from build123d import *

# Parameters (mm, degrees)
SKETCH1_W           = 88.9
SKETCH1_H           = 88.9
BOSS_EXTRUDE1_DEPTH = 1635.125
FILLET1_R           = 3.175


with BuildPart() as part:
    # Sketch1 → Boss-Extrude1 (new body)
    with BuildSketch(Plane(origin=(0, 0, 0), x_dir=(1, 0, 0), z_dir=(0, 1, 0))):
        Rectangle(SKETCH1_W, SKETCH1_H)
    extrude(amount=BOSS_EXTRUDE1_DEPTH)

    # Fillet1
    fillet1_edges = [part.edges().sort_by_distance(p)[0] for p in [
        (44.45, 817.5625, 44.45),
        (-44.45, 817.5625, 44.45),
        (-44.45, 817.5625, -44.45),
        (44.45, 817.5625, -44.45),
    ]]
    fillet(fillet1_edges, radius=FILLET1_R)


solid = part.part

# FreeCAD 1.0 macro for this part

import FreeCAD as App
import Part
import Sketcher

V = App.Vector
Q = App.Units.Quantity


def edges_at(feature, points):
    """Names of the edges that pass closest to the given points."""
    edges = feature.Shape.Edges
    near = lambda p: min(range(len(edges)), key=lambda i: edges[i].distToShape(Part.Vertex(*p))[0])
    return sorted({f"Edge{near(p) + 1}" for p in points})


def add_polygon(sketch, points):
    """Adds a closed chain of lines whose ends are joined by coincident constraints."""
    first, n = sketch.GeometryCount, len(points)
    for a, b in zip(points, points[1:] + points[:1]):
        sketch.addGeometry(Part.LineSegment(App.Vector(*a, 0), App.Vector(*b, 0)), False)
    for i in range(n):
        sketch.addConstraint(Sketcher.Constraint("Coincident", first + i, 2, first + (i + 1) % n, 1))

doc = App.newDocument("Part")
body = doc.addObject("PartDesign::Body", "Body")

# Sketch on XZ plane
sketch1 = body.newObject("Sketcher::SketchObject", "Sketch")
sketch1.AttachmentSupport = (doc.getObject("XZ_Plane"), [""])
sketch1.MapMode = "FlatFace"
add_polygon(sketch1, [(-44.45, -44.45), (-44.45, 44.45), (44.45, 44.45), (44.45, -44.45)])  # lines 0-3
sketch1.addConstraint([
    Sketcher.Constraint("Vertical", 0),
    Sketcher.Constraint("Horizontal", 1),
    Sketcher.Constraint("Vertical", 2),
    Sketcher.Constraint("Horizontal", 3),
    Sketcher.Constraint("Symmetric", 0, 2, 2, 2, -1, 1),
    Sketcher.Constraint("Equal", 3, 0),
    Sketcher.Constraint("DistanceX", 1, 1, 1, 2, Q("3.5 in")),
])
pad1 = body.newObject("PartDesign::Pad", "Pad")
pad1.Profile = sketch1
pad1.Length = Q("64.375 in")
pad1.Reversed = True
doc.recompute()

fillet = body.newObject("PartDesign::Fillet", "Fillet")
fillet.Base = (pad1, edges_at(pad1, [
    (44.45, 817.562, 44.45),
    (-44.45, 817.562, 44.45),
    (-44.45, 817.562, -44.45),
    (44.45, 817.562, -44.45),
]))
fillet.Radius = Q("0.125 in")

doc.recompute()
